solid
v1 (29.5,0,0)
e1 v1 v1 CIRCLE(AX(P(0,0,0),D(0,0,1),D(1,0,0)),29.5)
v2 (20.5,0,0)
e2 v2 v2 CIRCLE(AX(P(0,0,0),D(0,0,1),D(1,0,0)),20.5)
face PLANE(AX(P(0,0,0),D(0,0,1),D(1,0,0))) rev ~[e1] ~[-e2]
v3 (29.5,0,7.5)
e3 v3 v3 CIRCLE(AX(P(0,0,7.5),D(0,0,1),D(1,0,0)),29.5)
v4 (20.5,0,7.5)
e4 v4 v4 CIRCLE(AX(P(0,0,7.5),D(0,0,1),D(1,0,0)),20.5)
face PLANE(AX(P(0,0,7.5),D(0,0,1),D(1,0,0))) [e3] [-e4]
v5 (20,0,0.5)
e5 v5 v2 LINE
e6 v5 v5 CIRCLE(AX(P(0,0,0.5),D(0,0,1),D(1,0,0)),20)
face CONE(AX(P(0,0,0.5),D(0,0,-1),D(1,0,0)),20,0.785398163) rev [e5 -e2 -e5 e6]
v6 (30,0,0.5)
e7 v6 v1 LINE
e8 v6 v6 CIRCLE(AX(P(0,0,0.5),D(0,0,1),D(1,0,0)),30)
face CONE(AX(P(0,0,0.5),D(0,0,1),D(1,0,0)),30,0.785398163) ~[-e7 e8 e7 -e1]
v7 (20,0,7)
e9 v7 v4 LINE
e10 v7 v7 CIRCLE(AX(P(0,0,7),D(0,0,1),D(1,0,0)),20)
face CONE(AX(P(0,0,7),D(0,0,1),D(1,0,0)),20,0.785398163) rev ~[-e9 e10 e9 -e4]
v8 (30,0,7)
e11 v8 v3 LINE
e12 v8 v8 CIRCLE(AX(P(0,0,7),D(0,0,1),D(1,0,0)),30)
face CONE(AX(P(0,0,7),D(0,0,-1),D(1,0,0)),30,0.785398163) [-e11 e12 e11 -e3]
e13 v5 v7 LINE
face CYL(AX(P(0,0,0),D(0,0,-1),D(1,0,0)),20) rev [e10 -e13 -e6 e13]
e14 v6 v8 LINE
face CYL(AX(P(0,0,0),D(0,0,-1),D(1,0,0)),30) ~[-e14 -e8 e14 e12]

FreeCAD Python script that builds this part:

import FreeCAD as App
import Part
import Sketcher

V = App.Vector


def edges_at(feature, points):
    """Names of the edges that pass closest to the given points."""
    edges = feature.Shape.Edges
    near = lambda p: min(range(len(edges)), key=lambda i: edges[i].distToShape(Part.Vertex(*p))[0])
    return sorted({f"Edge{near(p) + 1}" for p in points})

doc = App.newDocument("Part")
body = doc.addObject("PartDesign::Body", "Body")

sketch1 = body.newObject("Sketcher::SketchObject", "Sketch")
sketch1.AttachmentSupport = (doc.getObject("XY_Plane"), [""])
sketch1.MapMode = "FlatFace"
sketch1.addGeometry(Part.Circle(V(0, 0, 0), V(0, 0, 1), 30), False)
sketch1.addGeometry(Part.Circle(V(0, 0, 0), V(0, 0, 1), 20), False)
sketch1.addConstraint(Sketcher.Constraint("Coincident", 0, 3, -1, 1))
sketch1.addConstraint(Sketcher.Constraint("Coincident", 1, 3, -1, 1))
sketch1.addConstraint(Sketcher.Constraint("Diameter", 0, 60.0))
sketch1.addConstraint(Sketcher.Constraint("Diameter", 1, 40.0))
pad1 = body.newObject("PartDesign::Pad", "Pad")
pad1.Profile = sketch1
pad1.Length = 7.5
doc.recompute()

chamfer = body.newObject("PartDesign::Chamfer", "Chamfer")
chamfer.Base = (pad1, edges_at(pad1, [
    (-20, 0, 7.5),
    (-20, 0, 0),
    (-30, 0, 7.5),
    (-30, 0, 0),
]))
chamfer.Size = 0.5

doc.recompute()
